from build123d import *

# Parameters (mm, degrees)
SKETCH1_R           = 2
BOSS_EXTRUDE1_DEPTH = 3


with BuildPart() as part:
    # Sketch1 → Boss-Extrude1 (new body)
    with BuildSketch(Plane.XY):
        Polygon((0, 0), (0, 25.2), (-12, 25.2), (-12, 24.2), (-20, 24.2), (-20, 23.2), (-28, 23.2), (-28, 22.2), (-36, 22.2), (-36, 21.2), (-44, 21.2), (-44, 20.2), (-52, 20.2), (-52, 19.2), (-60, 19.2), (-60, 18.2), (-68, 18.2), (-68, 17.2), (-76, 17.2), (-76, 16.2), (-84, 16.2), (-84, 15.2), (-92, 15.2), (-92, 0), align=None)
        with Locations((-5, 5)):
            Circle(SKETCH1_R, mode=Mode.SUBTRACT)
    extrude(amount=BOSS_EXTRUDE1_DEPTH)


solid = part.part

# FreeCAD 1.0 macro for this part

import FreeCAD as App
import Part
import Sketcher

V = App.Vector
Q = App.Units.Quantity

doc = App.newDocument("Part")
body = doc.addObject("PartDesign::Body", "Body")

# Sketch on XY plane
sketch1 = doc.addObject("Sketcher::SketchObject", "Sketch")
body.addObject(sketch1)
sketch1.AttachmentSupport = (doc.XY_Plane, [""])
sketch1.MapMode = "FlatFace"
sketch1.addGeometry([
    Part.LineSegment(V(0, 0, 0), V(0, 25.2, 0)),  # 0
    Part.LineSegment(V(0, 25.2, 0), V(-12, 25.2, 0)),  # 1
    Part.LineSegment(V(-12, 25.2, 0), V(-12, 24.2, 0)),  # 2
    Part.LineSegment(V(-12, 24.2, 0), V(-20, 24.2, 0)),  # 3
    Part.LineSegment(V(-20, 24.2, 0), V(-20, 23.2, 0)),  # 4
    Part.LineSegment(V(-20, 23.2, 0), V(-28, 23.2, 0)),  # 5
    Part.LineSegment(V(-28, 23.2, 0), V(-28, 22.2, 0)),  # 6
    Part.LineSegment(V(-28, 22.2, 0), V(-36, 22.2, 0)),  # 7
    Part.LineSegment(V(-36, 22.2, 0), V(-36, 21.2, 0)),  # 8
    Part.LineSegment(V(-36, 21.2, 0), V(-44, 21.2, 0)),  # 9
    Part.LineSegment(V(-44, 21.2, 0), V(-44, 20.2, 0)),  # 10
    Part.LineSegment(V(-44, 20.2, 0), V(-52, 20.2, 0)),  # 11
    Part.LineSegment(V(-52, 20.2, 0), V(-52, 19.2, 0)),  # 12
    Part.LineSegment(V(-52, 19.2, 0), V(-60, 19.2, 0)),  # 13
    Part.LineSegment(V(-60, 19.2, 0), V(-60, 18.2, 0)),  # 14
    Part.LineSegment(V(-60, 18.2, 0), V(-68, 18.2, 0)),  # 15
    Part.LineSegment(V(-68, 18.2, 0), V(-68, 17.2, 0)),  # 16
    Part.LineSegment(V(-68, 17.2, 0), V(-76, 17.2, 0)),  # 17
    Part.LineSegment(V(-76, 17.2, 0), V(-76, 16.2, 0)),  # 18
    Part.LineSegment(V(-76, 16.2, 0), V(-84, 16.2, 0)),  # 19
    Part.LineSegment(V(-84, 16.2, 0), V(-84, 15.2, 0)),  # 20
    Part.LineSegment(V(-84, 15.2, 0), V(-92, 15.2, 0)),  # 21
    Part.LineSegment(V(-92, 15.2, 0), V(-92, 0, 0)),  # 22
    Part.LineSegment(V(-92, 0, 0), V(0, 0, 0)),  # 23
    Part.Circle(V(-5, 5, 0), V(0, 0, 1), 2),  # 24
], False)
sketch1.addConstraint([
    Sketcher.Constraint("Coincident", 0, 2, 1, 1),
    Sketcher.Constraint("Coincident", 1, 2, 2, 1),
    Sketcher.Constraint("Coincident", 2, 2, 3, 1),
    Sketcher.Constraint("Coincident", 3, 2, 4, 1),
    Sketcher.Constraint("Coincident", 4, 2, 5, 1),
    Sketcher.Constraint("Coincident", 5, 2, 6, 1),
    Sketcher.Constraint("Coincident", 6, 2, 7, 1),
    Sketcher.Constraint("Coincident", 7, 2, 8, 1),
    Sketcher.Constraint("Coincident", 8, 2, 9, 1),
    Sketcher.Constraint("Coincident", 9, 2, 10, 1),
    Sketcher.Constraint("Coincident", 10, 2, 11, 1),
    Sketcher.Constraint("Coincident", 11, 2, 12, 1),
    Sketcher.Constraint("Coincident", 12, 2, 13, 1),
    Sketcher.Constraint("Coincident", 13, 2, 14, 1),
    Sketcher.Constraint("Coincident", 14, 2, 15, 1),
    Sketcher.Constraint("Coincident", 15, 2, 16, 1),
    Sketcher.Constraint("Coincident", 16, 2, 17, 1),
    Sketcher.Constraint("Coincident", 17, 2, 18, 1),
    Sketcher.Constraint("Coincident", 18, 2, 19, 1),
    Sketcher.Constraint("Coincident", 19, 2, 20, 1),
    Sketcher.Constraint("Coincident", 20, 2, 21, 1),
    Sketcher.Constraint("Coincident", 21, 2, 22, 1),
    Sketcher.Constraint("Coincident", 22, 2, 23, 1),
    Sketcher.Constraint("Coincident", 23, 2, 0, 1),
    Sketcher.Constraint("Vertical", 0),
    Sketcher.Constraint("Horizontal", 1),
    Sketcher.Constraint("Vertical", 2),
    Sketcher.Constraint("Horizontal", 3),
    Sketcher.Constraint("Vertical", 4),
    Sketcher.Constraint("Horizontal", 5),
    Sketcher.Constraint("Vertical", 6),
    Sketcher.Constraint("Horizontal", 7),
    Sketcher.Constraint("Vertical", 8),
    Sketcher.Constraint("Horizontal", 9),
    Sketcher.Constraint("Vertical", 10),
    Sketcher.Constraint("Horizontal", 11),
    Sketcher.Constraint("Vertical", 12),
    Sketcher.Constraint("Horizontal", 13),
    Sketcher.Constraint("Vertical", 14),
    Sketcher.Constraint("Horizontal", 15),
    Sketcher.Constraint("Vertical", 16),
    Sketcher.Constraint("Horizontal", 17),
    Sketcher.Constraint("Vertical", 18),
    Sketcher.Constraint("Horizontal", 19),
    Sketcher.Constraint("Vertical", 20),
    Sketcher.Constraint("Horizontal", 21),
    Sketcher.Constraint("Vertical", 22),
    Sketcher.Constraint("Horizontal", 23),
    Sketcher.Constraint("Coincident", 23, 2, -1, 1),
    Sketcher.Constraint("Equal", 3, 5),
    Sketcher.Constraint("Equal", 5, 7),
    Sketcher.Constraint("Equal", 7, 9),
    Sketcher.Constraint("Equal", 9, 11),
    Sketcher.Constraint("Equal", 11, 13),
    Sketcher.Constraint("Equal", 13, 15),
    Sketcher.Constraint("Equal", 15, 17),
    Sketcher.Constraint("Equal", 17, 19),
    Sketcher.Constraint("Equal", 19, 21),
    Sketcher.Constraint("Equal", 2, 4),
    Sketcher.Constraint("Equal", 4, 6),
    Sketcher.Constraint("Equal", 6, 8),
    Sketcher.Constraint("Equal", 8, 10),
    Sketcher.Constraint("Equal", 10, 12),
    Sketcher.Constraint("Equal", 12, 14),
    Sketcher.Constraint("Equal", 14, 16),
    Sketcher.Constraint("Equal", 16, 18),
    Sketcher.Constraint("Equal", 18, 20),
    Sketcher.Constraint("Diameter", 24, Q("4 mm")),
    Sketcher.Constraint("DistanceX", 1, 2, 1, 1, Q("12 mm")),
    Sketcher.Constraint("DistanceX", 3, 2, 3, 1, Q("8 mm")),
    Sketcher.Constraint("DistanceY", 2, 2, 2, 1, Q("1 mm")),
    Sketcher.Constraint("DistanceY", 0, 1, 0, 2, Q("25.2 mm")),
    Sketcher.Constraint("DistanceX", 24, 3, -1, 1, Q("5 mm")),
    Sketcher.Constraint("DistanceY", -1, 1, 24, 3, Q("5 mm")),
])
pad1 = doc.addObject("PartDesign::Pad", "Pad")
body.addObject(pad1)
pad1.Profile = sketch1
pad1.Length = 3

doc.recompute()
